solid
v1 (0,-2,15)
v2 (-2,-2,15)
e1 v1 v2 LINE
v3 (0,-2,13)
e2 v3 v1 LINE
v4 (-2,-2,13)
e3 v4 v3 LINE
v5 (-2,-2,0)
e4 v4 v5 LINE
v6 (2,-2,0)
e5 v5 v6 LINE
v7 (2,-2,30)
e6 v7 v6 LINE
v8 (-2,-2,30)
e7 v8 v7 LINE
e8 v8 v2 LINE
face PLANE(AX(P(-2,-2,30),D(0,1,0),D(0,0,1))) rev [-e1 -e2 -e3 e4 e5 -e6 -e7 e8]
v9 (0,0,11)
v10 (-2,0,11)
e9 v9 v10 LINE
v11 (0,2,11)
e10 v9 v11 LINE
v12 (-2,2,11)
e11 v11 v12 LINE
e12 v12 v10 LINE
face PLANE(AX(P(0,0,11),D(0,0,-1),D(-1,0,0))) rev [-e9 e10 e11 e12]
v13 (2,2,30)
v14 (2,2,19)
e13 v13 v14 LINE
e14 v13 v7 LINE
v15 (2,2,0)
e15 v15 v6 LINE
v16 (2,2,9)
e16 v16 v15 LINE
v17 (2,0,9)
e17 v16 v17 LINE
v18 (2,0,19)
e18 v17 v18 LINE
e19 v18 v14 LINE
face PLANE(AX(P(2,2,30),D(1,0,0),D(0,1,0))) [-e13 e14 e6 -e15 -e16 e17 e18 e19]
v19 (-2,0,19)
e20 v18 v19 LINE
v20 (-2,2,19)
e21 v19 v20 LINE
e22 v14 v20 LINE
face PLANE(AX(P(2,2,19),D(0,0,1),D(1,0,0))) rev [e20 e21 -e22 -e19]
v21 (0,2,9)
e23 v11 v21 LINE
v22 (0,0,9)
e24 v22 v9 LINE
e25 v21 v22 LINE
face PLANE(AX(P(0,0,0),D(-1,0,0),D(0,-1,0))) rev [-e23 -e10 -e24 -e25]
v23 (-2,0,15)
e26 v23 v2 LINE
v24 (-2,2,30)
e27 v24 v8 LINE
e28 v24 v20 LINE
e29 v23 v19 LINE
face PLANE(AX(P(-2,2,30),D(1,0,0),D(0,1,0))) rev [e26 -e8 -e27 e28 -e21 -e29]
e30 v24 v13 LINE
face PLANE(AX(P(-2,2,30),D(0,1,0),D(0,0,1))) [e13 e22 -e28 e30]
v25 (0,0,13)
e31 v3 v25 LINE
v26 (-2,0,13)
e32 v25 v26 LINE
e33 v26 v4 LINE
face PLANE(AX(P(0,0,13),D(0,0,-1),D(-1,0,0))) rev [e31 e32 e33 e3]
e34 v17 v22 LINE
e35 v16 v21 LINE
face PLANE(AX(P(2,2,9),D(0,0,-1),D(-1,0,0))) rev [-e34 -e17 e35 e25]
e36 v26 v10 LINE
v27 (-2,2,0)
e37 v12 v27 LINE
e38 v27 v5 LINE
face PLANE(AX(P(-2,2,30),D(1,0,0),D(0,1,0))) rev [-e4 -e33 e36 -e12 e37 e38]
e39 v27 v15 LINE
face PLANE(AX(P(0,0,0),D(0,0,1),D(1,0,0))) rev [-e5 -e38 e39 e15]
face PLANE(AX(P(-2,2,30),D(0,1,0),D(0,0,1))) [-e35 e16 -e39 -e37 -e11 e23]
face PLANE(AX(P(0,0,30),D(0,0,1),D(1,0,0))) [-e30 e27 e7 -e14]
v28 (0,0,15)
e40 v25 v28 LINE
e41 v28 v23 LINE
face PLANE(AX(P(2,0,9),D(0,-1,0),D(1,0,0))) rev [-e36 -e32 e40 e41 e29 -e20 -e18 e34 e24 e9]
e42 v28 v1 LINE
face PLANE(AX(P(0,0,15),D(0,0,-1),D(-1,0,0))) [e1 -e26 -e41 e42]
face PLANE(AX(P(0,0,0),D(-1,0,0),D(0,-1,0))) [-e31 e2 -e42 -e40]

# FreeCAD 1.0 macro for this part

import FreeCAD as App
import Part
import Sketcher
from FreeCAD import Vector
Q = App.Units.Quantity


def add_polygon(sketch, points):
    """Adds a closed chain of lines whose ends are joined by coincident constraints."""
    first, n = sketch.GeometryCount, len(points)
    for a, b in zip(points, points[1:] + points[:1]):
        sketch.addGeometry(Part.LineSegment(App.Vector(*a, 0), App.Vector(*b, 0)), False)
    for i in range(n):
        sketch.addConstraint(Sketcher.Constraint("Coincident", first + i, 2, first + (i + 1) % n, 1))

doc = App.newDocument("Part")
body = doc.addObject("PartDesign::Body", "Body")

# Sketch on XY plane
sketch1 = body.newObject("Sketcher::SketchObject", "Sketch")
sketch1.AttachmentSupport = (doc.getObject("XY_Plane"), [""])
sketch1.MapMode = "FlatFace"
add_polygon(sketch1, [(-2, 2), (-2, -2), (2, -2), (2, 2)])  # lines 0-3
sketch1.addConstraint([
    Sketcher.Constraint("Vertical", 0),
    Sketcher.Constraint("Horizontal", 1),
    Sketcher.Constraint("Vertical", 2),
    Sketcher.Constraint("Horizontal", 3),
    Sketcher.Constraint("Symmetric", 0, 2, 2, 2, -1, 1),
    Sketcher.Constraint("Equal", 3, 0),
    Sketcher.Constraint("DistanceX", 1, 1, 1, 2, Q("4 mm")),
])
pad1 = body.newObject("PartDesign::Pad", "Pad")
pad1.Profile = sketch1
pad1.Length = 30

# Sketch on YZ plane
sketch2 = body.newObject("Sketcher::SketchObject", "Sketch001")
sketch2.AttachmentSupport = (doc.getObject("YZ_Plane"), [""])
sketch2.MapMode = "FlatFace"
sketch2.AttachmentOffset = App.Placement(Vector(0, 0, -2), App.Rotation())
add_polygon(sketch2, [(2, 9), (0, 9), (0, 19), (2, 19)])  # lines 0-3
sketch2.addConstraint([
    Sketcher.Constraint("Horizontal", 0),
    Sketcher.Constraint("Vertical", 1),
    Sketcher.Constraint("Horizontal", 2),
    Sketcher.Constraint("Vertical", 3),
    Sketcher.Constraint("PointOnObject", 0, 2, -2),
    Sketcher.Constraint("DistanceX", 0, 2, 0, 1, Q("2 mm")),
    Sketcher.Constraint("DistanceY", 1, 1, 1, 2, Q("10 mm")),
    Sketcher.Constraint("DistanceY", -1, 1, 0, 2, Q("9 mm")),
])
pocket1 = body.newObject("PartDesign::Pocket", "Pocket")
pocket1.Profile = sketch2
pocket1.Length = 4
pocket1.Reversed = True

# Sketch on YZ plane
sketch3 = body.newObject("Sketcher::SketchObject", "Sketch002")
sketch3.AttachmentSupport = (doc.getObject("YZ_Plane"), [""])
sketch3.MapMode = "FlatFace"
sketch3.AttachmentOffset = App.Placement(Vector(0, 0, -2), App.Rotation())
add_polygon(sketch3, [(0, 11), (-2, 11), (-2, 15), (0, 15)])  # lines 0-3
sketch3.addConstraint([
    Sketcher.Constraint("Horizontal", 0),
    Sketcher.Constraint("Vertical", 1),
    Sketcher.Constraint("Horizontal", 2),
    Sketcher.Constraint("Vertical", 3),
    Sketcher.Constraint("PointOnObject", 2, 2, -2),
    Sketcher.Constraint("DistanceX", 0, 2, 0, 1, Q("2 mm")),
    Sketcher.Constraint("DistanceY", 1, 1, 1, 2, Q("4 mm")),
    Sketcher.Constraint("DistanceY", -1, 1, 0, 2, Q("11 mm")),
])
pocket2 = body.newObject("PartDesign::Pocket", "Pocket001")
pocket2.Profile = sketch3
pocket2.Length = 2
pocket2.Reversed = True

# Sketch on YZ plane
sketch4 = body.newObject("Sketcher::SketchObject", "Sketch003")
sketch4.AttachmentSupport = (doc.getObject("YZ_Plane"), [""])
sketch4.MapMode = "FlatFace"
sketch4.AttachmentOffset = App.Placement(Vector(0, 0, -2), App.Rotation())
add_polygon(sketch4, [(2, 9), (0, 9), (0, 11), (2, 11)])  # lines 0-3
sketch4.addConstraint([
    Sketcher.Constraint("Horizontal", 0),
    Sketcher.Constraint("Vertical", 1),
    Sketcher.Constraint("Horizontal", 2),
    Sketcher.Constraint("Vertical", 3),
    Sketcher.Constraint("PointOnObject", 0, 2, -2),
    Sketcher.Constraint("Equal", 2, 1),
    Sketcher.Constraint("DistanceX", 0, 2, 0, 1, Q("2 mm")),
    Sketcher.Constraint("DistanceY", -1, 1, 0, 2, Q("9 mm")),
])
pad2 = body.newObject("PartDesign::Pad", "Pad001")
pad2.Profile = sketch4
pad2.Length = 2

# Sketch on XY plane
sketch5 = body.newObject("Sketcher::SketchObject", "Sketch004")
sketch5.AttachmentSupport = (doc.getObject("XY_Plane"), [""])
sketch5.MapMode = "FlatFace"
sketch5.AttachmentOffset = App.Placement(Vector(0, 0, 11), App.Rotation())
add_polygon(sketch5, [(-2, 0), (-2, -2), (0, -2), (0, 0)])  # lines 0-3
sketch5.addConstraint([
    Sketcher.Constraint("Vertical", 0),
    Sketcher.Constraint("Horizontal", 1),
    Sketcher.Constraint("Vertical", 2),
    Sketcher.Constraint("Horizontal", 3),
    Sketcher.Constraint("Coincident", 2, 2, -1, 1),
    Sketcher.Constraint("Equal", 3, 0),
    Sketcher.Constraint("DistanceX", 1, 1, 1, 2, Q("2 mm")),
])
pad3 = body.newObject("PartDesign::Pad", "Pad002")
pad3.Profile = sketch5
pad3.Length = 2

doc.recompute()
